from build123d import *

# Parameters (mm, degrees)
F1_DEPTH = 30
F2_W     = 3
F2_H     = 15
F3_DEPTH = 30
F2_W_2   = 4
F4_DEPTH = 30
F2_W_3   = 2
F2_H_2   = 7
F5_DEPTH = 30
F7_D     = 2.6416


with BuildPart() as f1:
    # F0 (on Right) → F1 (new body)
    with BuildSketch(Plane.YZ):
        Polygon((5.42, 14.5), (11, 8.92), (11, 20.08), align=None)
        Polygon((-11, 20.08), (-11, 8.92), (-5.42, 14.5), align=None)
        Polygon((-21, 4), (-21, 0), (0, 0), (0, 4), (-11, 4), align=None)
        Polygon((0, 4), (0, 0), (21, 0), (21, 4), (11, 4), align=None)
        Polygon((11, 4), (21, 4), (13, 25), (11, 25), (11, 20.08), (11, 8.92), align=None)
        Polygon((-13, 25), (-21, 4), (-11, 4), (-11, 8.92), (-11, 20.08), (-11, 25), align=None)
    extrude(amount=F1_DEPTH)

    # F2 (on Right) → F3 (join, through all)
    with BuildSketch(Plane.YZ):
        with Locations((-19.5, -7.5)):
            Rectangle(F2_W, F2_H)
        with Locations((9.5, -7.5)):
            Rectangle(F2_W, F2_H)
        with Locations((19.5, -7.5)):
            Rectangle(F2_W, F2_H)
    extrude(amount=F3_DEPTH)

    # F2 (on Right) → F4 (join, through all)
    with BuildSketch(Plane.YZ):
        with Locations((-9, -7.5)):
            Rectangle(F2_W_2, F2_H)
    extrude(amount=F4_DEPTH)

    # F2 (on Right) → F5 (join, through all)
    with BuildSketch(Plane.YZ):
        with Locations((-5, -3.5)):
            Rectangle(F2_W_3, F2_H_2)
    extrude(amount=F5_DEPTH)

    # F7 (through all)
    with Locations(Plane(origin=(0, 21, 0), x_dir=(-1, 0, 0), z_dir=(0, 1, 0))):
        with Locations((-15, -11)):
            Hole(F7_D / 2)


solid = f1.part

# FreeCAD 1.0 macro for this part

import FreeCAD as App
import Part
import Sketcher
from FreeCAD import Vector
Q = App.Units.Quantity


def add_polygon(sketch, points):
    """Adds a closed chain of lines whose ends are joined by coincident constraints."""
    first, n = sketch.GeometryCount, len(points)
    for a, b in zip(points, points[1:] + points[:1]):
        sketch.addGeometry(Part.LineSegment(App.Vector(*a, 0), App.Vector(*b, 0)), False)
    for i in range(n):
        sketch.addConstraint(Sketcher.Constraint("Coincident", first + i, 2, first + (i + 1) % n, 1))

doc = App.newDocument("Part")
body = doc.addObject("PartDesign::Body", "Body")

sketch1 = doc.addObject("Sketcher::SketchObject", "Sketch")
body.addObject(sketch1)
sketch1.AttachmentSupport = (doc.YZ_Plane, [""])
sketch1.MapMode = "FlatFace"
add_polygon(sketch1, [(5.4, 14.5), (11, 8.9), (11, 4), (-11, 4), (-11, 8.9), (-5.4, 14.5), (-11, 20.1), (-11, 25), (-13, 25), (-21, 4), (-21, 0), (21, 0), (21, 4), (13, 25), (11, 25), (11, 20.1)])
sketch1.addConstraint(Sketcher.Constraint("Vertical", 1))
sketch1.addConstraint(Sketcher.Constraint("Horizontal", 2))
sketch1.addConstraint(Sketcher.Constraint("Vertical", 3))
sketch1.addConstraint(Sketcher.Constraint("Vertical", 6))
sketch1.addConstraint(Sketcher.Constraint("Horizontal", 7))
sketch1.addConstraint(Sketcher.Constraint("Vertical", 9))
sketch1.addConstraint(Sketcher.Constraint("Horizontal", 10))
sketch1.addConstraint(Sketcher.Constraint("Vertical", 11))
sketch1.addConstraint(Sketcher.Constraint("Horizontal", 13))
sketch1.addConstraint(Sketcher.Constraint("Vertical", 14))
sketch1.addConstraint(Sketcher.Constraint("Symmetric", 9, 2, 10, 2, -1, 1))
sketch1.addConstraint(Sketcher.Constraint("Symmetric", 0, 2, 3, 2, -2))
sketch1.addConstraint(Sketcher.Constraint("Symmetric", 7, 2, 12, 2, -2))
sketch1.addConstraint(Sketcher.Constraint("Symmetric", 5, 2, 14, 2, -2))
sketch1.addConstraint(Sketcher.Constraint("Symmetric", 4, 2, 15, 2, -2))
sketch1.addConstraint(Sketcher.Constraint("Perpendicular", 0, 4))
sketch1.addConstraint(Sketcher.Constraint("Perpendicular", 4, 5))
sketch1.addConstraint(Sketcher.Constraint("Horizontal", 2, 2, 8, 2))
sketch1.addConstraint(Sketcher.Constraint("Horizontal", 8, 2, 11, 2))
sketch1.addConstraint(Sketcher.Constraint("Vertical", 3, 2, 5, 2))
sketch1.addConstraint(Sketcher.Constraint("Equal", 3, 6))
sketch1.addConstraint(Sketcher.Constraint("DistanceX", 2, 2, 2, 1, Q("22 mm")))
sketch1.addConstraint(Sketcher.Constraint("DistanceX", 7, 2, 7, 1, Q("2 mm")))
sketch1.addConstraint(Sketcher.Constraint("DistanceX", 10, 1, 10, 2, Q("42 mm")))
sketch1.addConstraint(Sketcher.Constraint("DistanceY", 9, 2, 9, 1, Q("4 mm")))
sketch1.addConstraint(Sketcher.Constraint("DistanceY", -1, 1, 6, 2, Q("25 mm")))
sketch1.addConstraint(Sketcher.Constraint("DistanceY", 1, 2, 1, 1, Q("4.92 mm")))
pad1 = doc.addObject("PartDesign::Pad", "Pad")
body.addObject(pad1)
pad1.Profile = sketch1
pad1.Length = 30

sketch2 = doc.addObject("Sketcher::SketchObject", "Sketch001")
body.addObject(sketch2)
sketch2.AttachmentSupport = (doc.YZ_Plane, [""])
sketch2.MapMode = "FlatFace"
add_polygon(sketch2, [(-21, 0), (-21, -15), (-18, -15), (-18, 0)])
add_polygon(sketch2, [(8, 0), (8, -15), (11, -15), (11, 0)])
add_polygon(sketch2, [(18, 0), (18, -15), (21, -15), (21, 0)])
sketch2.addConstraint(Sketcher.Constraint("Vertical", 0))
sketch2.addConstraint(Sketcher.Constraint("Horizontal", 1))
sketch2.addConstraint(Sketcher.Constraint("Vertical", 2))
sketch2.addConstraint(Sketcher.Constraint("Horizontal", 3))
sketch2.addConstraint(Sketcher.Constraint("Vertical", 4))
sketch2.addConstraint(Sketcher.Constraint("Horizontal", 5))
sketch2.addConstraint(Sketcher.Constraint("Vertical", 6))
sketch2.addConstraint(Sketcher.Constraint("Horizontal", 7))
sketch2.addConstraint(Sketcher.Constraint("Vertical", 8))
sketch2.addConstraint(Sketcher.Constraint("Horizontal", 9))
sketch2.addConstraint(Sketcher.Constraint("Vertical", 10))
sketch2.addConstraint(Sketcher.Constraint("Horizontal", 11))
sketch2.addConstraint(Sketcher.Constraint("Symmetric", 3, 2, 10, 2, -1, 1))
sketch2.addConstraint(Sketcher.Constraint("Symmetric", 1, 2, 8, 2, -2))
sketch2.addConstraint(Sketcher.Constraint("PointOnObject", 2, 2, -1))
sketch2.addConstraint(Sketcher.Constraint("PointOnObject", 6, 2, -1))
sketch2.addConstraint(Sketcher.Constraint("Horizontal", 1, 2, 4, 2))
sketch2.addConstraint(Sketcher.Constraint("Equal", 3, 5))
sketch2.addConstraint(Sketcher.Constraint("DistanceX", 1, 1, 1, 2, Q("3 mm")))
sketch2.addConstraint(Sketcher.Constraint("DistanceY", 0, 2, 0, 1, Q("15 mm")))
sketch2.addConstraint(Sketcher.Constraint("DistanceX", 0, 2, -1, 1, Q("21 mm")))
sketch2.addConstraint(Sketcher.Constraint("DistanceX", -1, 1, 4, 2, Q("8 mm")))
pad2 = doc.addObject("PartDesign::Pad", "Pad001")
body.addObject(pad2)
pad2.Profile = sketch2
pad2.Length = 30

sketch3 = doc.addObject("Sketcher::SketchObject", "Sketch002")
body.addObject(sketch3)
sketch3.AttachmentSupport = (doc.YZ_Plane, [""])
sketch3.MapMode = "FlatFace"
add_polygon(sketch3, [(-11, 0), (-11, -15), (-7, -15), (-7, 0)])
sketch3.addConstraint(Sketcher.Constraint("Vertical", 0))
sketch3.addConstraint(Sketcher.Constraint("Horizontal", 1))
sketch3.addConstraint(Sketcher.Constraint("Vertical", 2))
sketch3.addConstraint(Sketcher.Constraint("Horizontal", 3))
sketch3.addConstraint(Sketcher.Constraint("PointOnObject", 2, 2, -1))
sketch3.addConstraint(Sketcher.Constraint("DistanceX", 1, 1, 1, 2, Q("4 mm")))
sketch3.addConstraint(Sketcher.Constraint("DistanceY", 0, 2, 0, 1, Q("15 mm")))
sketch3.addConstraint(Sketcher.Constraint("DistanceX", 0, 2, -1, 1, Q("11 mm")))
pad3 = doc.addObject("PartDesign::Pad", "Pad002")
body.addObject(pad3)
pad3.Profile = sketch3
pad3.Length = 30

sketch4 = doc.addObject("Sketcher::SketchObject", "Sketch003")
body.addObject(sketch4)
sketch4.AttachmentSupport = (doc.YZ_Plane, [""])
sketch4.MapMode = "FlatFace"
add_polygon(sketch4, [(-6, 0), (-6, -7), (-4, -7), (-4, 0)])
sketch4.addConstraint(Sketcher.Constraint("Vertical", 0))
sketch4.addConstraint(Sketcher.Constraint("Horizontal", 1))
sketch4.addConstraint(Sketcher.Constraint("Vertical", 2))
sketch4.addConstraint(Sketcher.Constraint("Horizontal", 3))
sketch4.addConstraint(Sketcher.Constraint("PointOnObject", 2, 2, -1))
sketch4.addConstraint(Sketcher.Constraint("DistanceX", 1, 1, 1, 2, Q("2 mm")))
sketch4.addConstraint(Sketcher.Constraint("DistanceY", 0, 2, 0, 1, Q("7 mm")))
sketch4.addConstraint(Sketcher.Constraint("DistanceX", 0, 2, -1, 1, Q("6 mm")))
pad4 = doc.addObject("PartDesign::Pad", "Pad003")
body.addObject(pad4)
pad4.Profile = sketch4
pad4.Length = 30

sketch5 = doc.addObject("Sketcher::SketchObject", "Sketch004")
body.addObject(sketch5)
sketch5.AttachmentSupport = (doc.XZ_Plane, [""])
sketch5.MapMode = "FlatFace"
sketch5.AttachmentOffset = App.Placement(Vector(0, 0, -21), App.Rotation())
sketch5.addGeometry(Part.Circle(Vector(15, -11, 0), Vector(0, 0, 1), 1.3), False)
sketch5.addConstraint(Sketcher.Constraint("DistanceX", -1, 1, 0, 3, Q("15 mm")))
sketch5.addConstraint(Sketcher.Constraint("DistanceY", 0, 3, -1, 1, Q("11 mm")))
sketch5.addConstraint(Sketcher.Constraint("Diameter", 0, Q("2.6416 mm")))
doc.recompute()
hole = doc.addObject("PartDesign::Hole", "Hole")
body.addObject(hole)
hole.Profile = sketch5
hole.ThreadType = "None"
hole.Diameter = 2.6416
hole.DepthType = "ThroughAll"
hole.Reversed = True

doc.recompute()
